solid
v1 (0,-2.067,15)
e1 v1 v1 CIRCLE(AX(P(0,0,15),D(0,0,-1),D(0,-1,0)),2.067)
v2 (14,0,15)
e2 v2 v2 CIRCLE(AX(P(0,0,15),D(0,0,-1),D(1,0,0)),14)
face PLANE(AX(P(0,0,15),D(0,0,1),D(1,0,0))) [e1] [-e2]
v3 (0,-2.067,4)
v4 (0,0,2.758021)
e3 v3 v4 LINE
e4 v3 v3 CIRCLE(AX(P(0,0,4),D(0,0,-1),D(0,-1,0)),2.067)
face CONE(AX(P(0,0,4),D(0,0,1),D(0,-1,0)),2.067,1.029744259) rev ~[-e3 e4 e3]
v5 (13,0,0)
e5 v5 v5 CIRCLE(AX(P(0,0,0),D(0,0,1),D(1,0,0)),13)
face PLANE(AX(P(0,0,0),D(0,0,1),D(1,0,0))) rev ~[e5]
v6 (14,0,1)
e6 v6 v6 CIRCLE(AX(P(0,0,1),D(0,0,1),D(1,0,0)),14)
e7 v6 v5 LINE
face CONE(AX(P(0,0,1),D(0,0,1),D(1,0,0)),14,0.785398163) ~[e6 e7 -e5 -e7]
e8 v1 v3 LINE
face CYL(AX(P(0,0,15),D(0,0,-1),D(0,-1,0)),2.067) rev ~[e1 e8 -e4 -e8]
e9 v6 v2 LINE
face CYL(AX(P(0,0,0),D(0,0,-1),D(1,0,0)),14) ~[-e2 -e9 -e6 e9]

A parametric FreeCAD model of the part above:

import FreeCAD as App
import Part
import Sketcher

V = App.Vector


def edges_at(feature, points):
    """Names of the edges that pass closest to the given points."""
    edges = feature.Shape.Edges
    near = lambda p: min(range(len(edges)), key=lambda i: edges[i].distToShape(Part.Vertex(*p))[0])
    return sorted({f"Edge{near(p) + 1}" for p in points})

doc = App.newDocument("Part")
body = doc.addObject("PartDesign::Body", "Body")

sketch1 = body.newObject("Sketcher::SketchObject", "Sketch")
sketch1.AttachmentSupport = (doc.getObject("XY_Plane"), [""])
sketch1.MapMode = "FlatFace"
sketch1.addGeometry(Part.Circle(V(0, 0, 0), V(0, 0, 1), 14), False)
sketch1.addConstraint([
    Sketcher.Constraint("Coincident", 0, 3, -1, 1),
    Sketcher.Constraint("Diameter", 0, 28.0),
])
pad1 = body.newObject("PartDesign::Pad", "Pad")
pad1.Profile = sketch1
pad1.Length = 15
doc.recompute()

chamfer = body.newObject("PartDesign::Chamfer", "Chamfer")
chamfer.Base = (pad1, edges_at(pad1, [(-14, 0, 0)]))
chamfer.Size = 1

sketch2 = body.newObject("Sketcher::SketchObject", "Sketch001")
sketch2.AttachmentSupport = (doc.getObject("XY_Plane"), [""])
sketch2.MapMode = "FlatFace"
sketch2.AttachmentOffset = App.Placement(V(0, 0, 15), App.Rotation())
sketch2.addGeometry(Part.Circle(V(0, 0, 0), V(0, 0, 1), 2.1), False)
sketch2.addConstraint([
    Sketcher.Constraint("Coincident", 0, 3, -1, 1),
    Sketcher.Constraint("Diameter", 0, 4.134),
])
doc.recompute()
hole = body.newObject("PartDesign::Hole", "Hole")
hole.Profile = sketch2
hole.ThreadType = "None"
hole.Diameter = 4.134
hole.DepthType = "Dimension"
hole.Depth = 11
hole.DrillPoint = "Angled"
hole.DrillPointAngle = 118

doc.recompute()
